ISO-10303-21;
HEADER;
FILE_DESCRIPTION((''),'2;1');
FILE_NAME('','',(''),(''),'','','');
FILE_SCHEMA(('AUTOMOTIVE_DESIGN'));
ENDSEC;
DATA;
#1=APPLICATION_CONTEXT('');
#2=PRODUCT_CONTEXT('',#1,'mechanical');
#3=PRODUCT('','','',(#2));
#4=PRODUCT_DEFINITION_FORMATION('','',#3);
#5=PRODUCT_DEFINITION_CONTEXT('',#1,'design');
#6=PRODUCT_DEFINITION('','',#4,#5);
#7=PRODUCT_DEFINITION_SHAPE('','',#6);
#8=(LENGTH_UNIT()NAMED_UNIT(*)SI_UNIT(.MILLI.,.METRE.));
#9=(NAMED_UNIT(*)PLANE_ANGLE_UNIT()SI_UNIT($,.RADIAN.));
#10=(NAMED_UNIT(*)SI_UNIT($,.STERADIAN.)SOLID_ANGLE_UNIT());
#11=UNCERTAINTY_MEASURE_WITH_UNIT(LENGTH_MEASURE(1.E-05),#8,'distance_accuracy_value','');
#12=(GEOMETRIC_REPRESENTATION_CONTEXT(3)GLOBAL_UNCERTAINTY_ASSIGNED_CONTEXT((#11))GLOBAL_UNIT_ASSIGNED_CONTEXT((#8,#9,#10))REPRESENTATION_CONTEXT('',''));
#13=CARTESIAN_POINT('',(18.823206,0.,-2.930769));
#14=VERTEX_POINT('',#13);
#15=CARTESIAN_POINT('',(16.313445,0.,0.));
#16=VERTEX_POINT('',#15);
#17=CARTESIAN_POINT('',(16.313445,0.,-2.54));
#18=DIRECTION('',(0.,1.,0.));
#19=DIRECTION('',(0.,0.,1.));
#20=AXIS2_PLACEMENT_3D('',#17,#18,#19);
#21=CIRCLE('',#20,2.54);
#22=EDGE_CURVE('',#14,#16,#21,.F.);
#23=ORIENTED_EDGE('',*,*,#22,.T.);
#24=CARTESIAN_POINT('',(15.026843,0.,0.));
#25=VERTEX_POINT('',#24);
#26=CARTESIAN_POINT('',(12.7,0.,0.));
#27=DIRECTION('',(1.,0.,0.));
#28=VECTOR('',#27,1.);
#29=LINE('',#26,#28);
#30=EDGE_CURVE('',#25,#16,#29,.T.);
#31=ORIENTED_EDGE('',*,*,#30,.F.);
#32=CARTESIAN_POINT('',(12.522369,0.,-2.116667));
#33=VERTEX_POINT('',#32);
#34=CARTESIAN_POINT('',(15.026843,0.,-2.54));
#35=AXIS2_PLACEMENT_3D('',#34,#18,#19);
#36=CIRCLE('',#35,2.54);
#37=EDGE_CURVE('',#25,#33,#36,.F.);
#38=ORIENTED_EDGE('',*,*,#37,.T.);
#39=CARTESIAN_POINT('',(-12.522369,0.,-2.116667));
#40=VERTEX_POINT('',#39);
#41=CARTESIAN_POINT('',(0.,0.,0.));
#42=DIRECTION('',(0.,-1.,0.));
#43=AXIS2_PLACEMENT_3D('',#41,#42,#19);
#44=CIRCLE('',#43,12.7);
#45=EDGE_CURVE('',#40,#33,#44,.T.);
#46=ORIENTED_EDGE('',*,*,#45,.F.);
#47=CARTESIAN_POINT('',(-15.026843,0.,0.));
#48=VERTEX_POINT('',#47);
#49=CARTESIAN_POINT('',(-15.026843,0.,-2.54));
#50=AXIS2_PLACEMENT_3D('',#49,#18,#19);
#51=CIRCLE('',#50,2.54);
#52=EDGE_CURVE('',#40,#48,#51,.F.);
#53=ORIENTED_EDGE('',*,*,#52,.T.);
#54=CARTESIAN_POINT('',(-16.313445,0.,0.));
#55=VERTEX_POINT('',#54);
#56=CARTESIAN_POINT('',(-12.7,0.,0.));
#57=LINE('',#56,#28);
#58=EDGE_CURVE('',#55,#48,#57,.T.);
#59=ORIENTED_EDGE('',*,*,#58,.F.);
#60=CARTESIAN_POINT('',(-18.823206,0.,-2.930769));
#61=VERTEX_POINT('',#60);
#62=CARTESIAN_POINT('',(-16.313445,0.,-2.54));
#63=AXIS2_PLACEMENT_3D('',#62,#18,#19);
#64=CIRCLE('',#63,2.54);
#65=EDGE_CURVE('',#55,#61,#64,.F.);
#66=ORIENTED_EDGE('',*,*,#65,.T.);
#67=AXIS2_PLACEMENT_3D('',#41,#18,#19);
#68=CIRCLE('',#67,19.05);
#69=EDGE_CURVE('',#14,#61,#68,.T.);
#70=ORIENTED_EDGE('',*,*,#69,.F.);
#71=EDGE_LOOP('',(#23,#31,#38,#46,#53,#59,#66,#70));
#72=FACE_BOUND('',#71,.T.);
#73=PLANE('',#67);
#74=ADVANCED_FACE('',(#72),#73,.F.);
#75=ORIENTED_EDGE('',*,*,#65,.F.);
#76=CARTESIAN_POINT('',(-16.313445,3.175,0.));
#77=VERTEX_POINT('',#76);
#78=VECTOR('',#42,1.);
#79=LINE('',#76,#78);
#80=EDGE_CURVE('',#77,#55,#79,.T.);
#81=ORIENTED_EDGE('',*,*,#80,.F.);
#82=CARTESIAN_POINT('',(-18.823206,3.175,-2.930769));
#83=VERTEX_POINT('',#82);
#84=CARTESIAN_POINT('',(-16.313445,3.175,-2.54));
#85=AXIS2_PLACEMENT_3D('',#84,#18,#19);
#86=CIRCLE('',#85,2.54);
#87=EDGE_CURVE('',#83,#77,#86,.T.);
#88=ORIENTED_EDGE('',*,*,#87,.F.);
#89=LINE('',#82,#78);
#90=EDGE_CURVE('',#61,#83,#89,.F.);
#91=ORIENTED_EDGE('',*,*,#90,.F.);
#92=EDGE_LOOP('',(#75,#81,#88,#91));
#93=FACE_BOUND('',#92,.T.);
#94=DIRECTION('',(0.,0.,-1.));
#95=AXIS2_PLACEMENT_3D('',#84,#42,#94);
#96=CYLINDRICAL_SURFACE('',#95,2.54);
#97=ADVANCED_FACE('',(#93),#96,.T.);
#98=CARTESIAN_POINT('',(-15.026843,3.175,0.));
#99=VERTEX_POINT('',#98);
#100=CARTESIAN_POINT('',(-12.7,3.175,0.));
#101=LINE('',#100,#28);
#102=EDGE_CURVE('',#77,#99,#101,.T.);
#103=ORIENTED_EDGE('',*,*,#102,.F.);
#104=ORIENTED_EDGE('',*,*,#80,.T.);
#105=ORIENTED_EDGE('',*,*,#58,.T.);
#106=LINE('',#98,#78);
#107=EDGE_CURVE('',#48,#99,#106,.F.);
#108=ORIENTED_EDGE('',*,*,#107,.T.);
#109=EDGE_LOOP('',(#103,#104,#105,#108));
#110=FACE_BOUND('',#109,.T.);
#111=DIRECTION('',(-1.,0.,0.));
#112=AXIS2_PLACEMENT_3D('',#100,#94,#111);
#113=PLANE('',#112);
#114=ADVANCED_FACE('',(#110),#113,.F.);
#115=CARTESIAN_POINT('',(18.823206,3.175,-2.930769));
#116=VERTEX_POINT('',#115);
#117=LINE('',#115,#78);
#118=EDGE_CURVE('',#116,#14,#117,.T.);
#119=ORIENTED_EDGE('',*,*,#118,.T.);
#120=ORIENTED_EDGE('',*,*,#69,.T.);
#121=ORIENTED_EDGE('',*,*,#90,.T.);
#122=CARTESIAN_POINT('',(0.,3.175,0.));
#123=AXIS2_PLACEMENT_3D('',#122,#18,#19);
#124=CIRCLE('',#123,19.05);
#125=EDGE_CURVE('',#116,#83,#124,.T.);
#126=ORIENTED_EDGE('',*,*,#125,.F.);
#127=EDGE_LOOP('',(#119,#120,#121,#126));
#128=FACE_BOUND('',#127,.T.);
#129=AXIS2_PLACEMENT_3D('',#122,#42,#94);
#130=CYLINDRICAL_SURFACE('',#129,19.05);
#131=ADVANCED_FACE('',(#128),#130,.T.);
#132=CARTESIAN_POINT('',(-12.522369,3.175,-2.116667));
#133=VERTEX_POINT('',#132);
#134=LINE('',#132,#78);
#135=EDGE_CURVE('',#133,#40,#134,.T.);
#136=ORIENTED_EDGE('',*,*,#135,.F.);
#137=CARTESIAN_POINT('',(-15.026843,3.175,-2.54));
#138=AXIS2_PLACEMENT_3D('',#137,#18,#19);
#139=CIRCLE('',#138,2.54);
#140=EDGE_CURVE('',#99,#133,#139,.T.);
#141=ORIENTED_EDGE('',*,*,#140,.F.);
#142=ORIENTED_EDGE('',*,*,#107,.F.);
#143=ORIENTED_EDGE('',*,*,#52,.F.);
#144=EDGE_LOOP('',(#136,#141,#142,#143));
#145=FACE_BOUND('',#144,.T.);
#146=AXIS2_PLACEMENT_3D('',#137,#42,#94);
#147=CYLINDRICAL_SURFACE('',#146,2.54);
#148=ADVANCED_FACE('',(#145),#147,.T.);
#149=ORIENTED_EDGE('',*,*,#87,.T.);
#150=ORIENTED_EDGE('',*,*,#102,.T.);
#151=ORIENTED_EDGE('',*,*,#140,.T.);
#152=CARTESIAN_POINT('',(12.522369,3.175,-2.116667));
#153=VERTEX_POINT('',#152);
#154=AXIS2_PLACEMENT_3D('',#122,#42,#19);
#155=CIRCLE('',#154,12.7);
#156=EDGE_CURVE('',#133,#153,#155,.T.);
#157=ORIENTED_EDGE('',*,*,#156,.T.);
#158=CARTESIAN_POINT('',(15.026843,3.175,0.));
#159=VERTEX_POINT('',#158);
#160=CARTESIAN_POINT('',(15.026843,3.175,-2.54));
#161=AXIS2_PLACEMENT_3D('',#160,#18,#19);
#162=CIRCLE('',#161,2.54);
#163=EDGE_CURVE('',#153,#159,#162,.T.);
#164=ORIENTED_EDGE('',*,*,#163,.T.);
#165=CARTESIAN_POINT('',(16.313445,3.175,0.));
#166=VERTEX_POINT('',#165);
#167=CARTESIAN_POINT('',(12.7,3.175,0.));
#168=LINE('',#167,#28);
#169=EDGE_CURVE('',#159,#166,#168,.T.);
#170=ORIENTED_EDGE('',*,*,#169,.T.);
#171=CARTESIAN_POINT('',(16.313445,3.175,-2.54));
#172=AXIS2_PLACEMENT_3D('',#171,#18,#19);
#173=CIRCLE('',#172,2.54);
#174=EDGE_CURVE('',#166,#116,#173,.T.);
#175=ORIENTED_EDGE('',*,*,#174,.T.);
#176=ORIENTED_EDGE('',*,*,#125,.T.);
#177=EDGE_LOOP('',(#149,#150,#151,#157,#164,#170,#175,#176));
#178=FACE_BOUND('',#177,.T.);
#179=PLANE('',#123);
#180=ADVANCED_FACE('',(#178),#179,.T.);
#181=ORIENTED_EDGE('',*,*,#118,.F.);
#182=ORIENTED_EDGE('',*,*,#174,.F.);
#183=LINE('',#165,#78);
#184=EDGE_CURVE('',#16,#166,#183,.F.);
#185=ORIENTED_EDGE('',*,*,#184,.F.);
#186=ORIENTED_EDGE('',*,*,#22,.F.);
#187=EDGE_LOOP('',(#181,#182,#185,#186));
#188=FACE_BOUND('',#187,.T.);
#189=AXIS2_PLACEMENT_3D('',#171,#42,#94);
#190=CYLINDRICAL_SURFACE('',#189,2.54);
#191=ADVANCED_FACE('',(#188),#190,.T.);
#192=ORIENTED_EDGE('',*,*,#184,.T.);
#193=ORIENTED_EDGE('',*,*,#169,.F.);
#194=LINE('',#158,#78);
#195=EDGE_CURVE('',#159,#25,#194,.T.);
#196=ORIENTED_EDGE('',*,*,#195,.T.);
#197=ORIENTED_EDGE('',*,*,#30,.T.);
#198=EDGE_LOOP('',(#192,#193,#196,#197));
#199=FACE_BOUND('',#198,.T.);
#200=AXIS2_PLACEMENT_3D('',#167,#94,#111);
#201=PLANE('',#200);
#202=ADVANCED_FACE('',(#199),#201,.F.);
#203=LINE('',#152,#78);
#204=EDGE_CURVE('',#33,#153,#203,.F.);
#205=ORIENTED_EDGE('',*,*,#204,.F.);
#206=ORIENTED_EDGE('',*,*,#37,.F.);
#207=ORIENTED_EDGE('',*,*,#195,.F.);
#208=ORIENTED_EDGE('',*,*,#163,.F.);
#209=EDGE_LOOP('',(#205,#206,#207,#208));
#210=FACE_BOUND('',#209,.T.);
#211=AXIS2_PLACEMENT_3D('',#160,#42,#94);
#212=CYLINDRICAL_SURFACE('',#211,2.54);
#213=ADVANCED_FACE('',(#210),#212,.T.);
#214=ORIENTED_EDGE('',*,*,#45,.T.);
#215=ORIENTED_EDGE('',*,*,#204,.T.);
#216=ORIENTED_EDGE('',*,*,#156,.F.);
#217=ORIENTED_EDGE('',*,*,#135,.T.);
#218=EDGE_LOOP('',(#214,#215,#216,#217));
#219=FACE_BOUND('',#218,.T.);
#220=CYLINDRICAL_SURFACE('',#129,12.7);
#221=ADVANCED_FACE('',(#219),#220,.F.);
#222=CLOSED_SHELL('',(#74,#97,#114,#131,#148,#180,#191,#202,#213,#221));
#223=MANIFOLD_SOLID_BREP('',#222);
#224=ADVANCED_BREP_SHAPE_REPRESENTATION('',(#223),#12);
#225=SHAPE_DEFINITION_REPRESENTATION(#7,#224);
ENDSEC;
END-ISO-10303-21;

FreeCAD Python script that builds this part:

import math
import FreeCAD as App
import Part
import Sketcher
Q = App.Units.Quantity


def edges_at(feature, points):
    """Names of the edges that pass closest to the given points."""
    edges = feature.Shape.Edges
    near = lambda p: min(range(len(edges)), key=lambda i: edges[i].distToShape(Part.Vertex(*p))[0])
    return sorted({f"Edge{near(p) + 1}" for p in points})

doc = App.newDocument("Part")
body = doc.addObject("PartDesign::Body", "Body")

# Sketch on XZ plane
sketch1 = body.newObject("Sketcher::SketchObject", "Sketch")
sketch1.AttachmentSupport = (doc.getObject("XZ_Plane"), [""])
sketch1.MapMode = "FlatFace"
sketch1.addGeometry([
    Part.LineSegment(App.Vector(-19, 0, 0), App.Vector(-13, 0, 0)),
    Part.ArcOfCircle(Part.Circle(App.Vector(0, 0, 0), App.Vector(0, 0, 1), 13), math.radians(180), math.radians(360)),
    Part.LineSegment(App.Vector(13, 0, 0), App.Vector(19, 0, 0)),
    Part.ArcOfCircle(Part.Circle(App.Vector(0, 0, 0), App.Vector(0, 0, 1), 19), math.radians(180), math.radians(360)),
], False)
sketch1.addConstraint([
    Sketcher.Constraint("Coincident", 0, 2, 1, 1),
    Sketcher.Constraint("Coincident", 1, 2, 2, 1),
    Sketcher.Constraint("Coincident", 2, 2, 3, 2),
    Sketcher.Constraint("Coincident", 3, 1, 0, 1),
    Sketcher.Constraint("Horizontal", 0),
    Sketcher.Constraint("Horizontal", 2),
    Sketcher.Constraint("Coincident", 1, 3, -1, 1),
    Sketcher.Constraint("Coincident", 3, 3, -1, 1),
    Sketcher.Constraint("PointOnObject", 0, 2, -1),
    Sketcher.Constraint("PointOnObject", 1, 2, -1),
    Sketcher.Constraint("Radius", 1, Q("0.5 in")),
    Sketcher.Constraint("Radius", 3, Q("0.75 in")),
])
pad1 = body.newObject("PartDesign::Pad", "Pad")
pad1.Profile = sketch1
pad1.Length = Q("0.125 in")
pad1.Reversed = True
doc.recompute()

fillet = body.newObject("PartDesign::Fillet", "Fillet")
fillet.Base = (pad1, edges_at(pad1, [
    (-12.7, 1.587, 0),
    (-19.05, 1.587, 0),
    (19.05, 1.587, 0),
    (12.7, 1.587, 0),
]))
fillet.Radius = Q("0.1 in")

doc.recompute()
